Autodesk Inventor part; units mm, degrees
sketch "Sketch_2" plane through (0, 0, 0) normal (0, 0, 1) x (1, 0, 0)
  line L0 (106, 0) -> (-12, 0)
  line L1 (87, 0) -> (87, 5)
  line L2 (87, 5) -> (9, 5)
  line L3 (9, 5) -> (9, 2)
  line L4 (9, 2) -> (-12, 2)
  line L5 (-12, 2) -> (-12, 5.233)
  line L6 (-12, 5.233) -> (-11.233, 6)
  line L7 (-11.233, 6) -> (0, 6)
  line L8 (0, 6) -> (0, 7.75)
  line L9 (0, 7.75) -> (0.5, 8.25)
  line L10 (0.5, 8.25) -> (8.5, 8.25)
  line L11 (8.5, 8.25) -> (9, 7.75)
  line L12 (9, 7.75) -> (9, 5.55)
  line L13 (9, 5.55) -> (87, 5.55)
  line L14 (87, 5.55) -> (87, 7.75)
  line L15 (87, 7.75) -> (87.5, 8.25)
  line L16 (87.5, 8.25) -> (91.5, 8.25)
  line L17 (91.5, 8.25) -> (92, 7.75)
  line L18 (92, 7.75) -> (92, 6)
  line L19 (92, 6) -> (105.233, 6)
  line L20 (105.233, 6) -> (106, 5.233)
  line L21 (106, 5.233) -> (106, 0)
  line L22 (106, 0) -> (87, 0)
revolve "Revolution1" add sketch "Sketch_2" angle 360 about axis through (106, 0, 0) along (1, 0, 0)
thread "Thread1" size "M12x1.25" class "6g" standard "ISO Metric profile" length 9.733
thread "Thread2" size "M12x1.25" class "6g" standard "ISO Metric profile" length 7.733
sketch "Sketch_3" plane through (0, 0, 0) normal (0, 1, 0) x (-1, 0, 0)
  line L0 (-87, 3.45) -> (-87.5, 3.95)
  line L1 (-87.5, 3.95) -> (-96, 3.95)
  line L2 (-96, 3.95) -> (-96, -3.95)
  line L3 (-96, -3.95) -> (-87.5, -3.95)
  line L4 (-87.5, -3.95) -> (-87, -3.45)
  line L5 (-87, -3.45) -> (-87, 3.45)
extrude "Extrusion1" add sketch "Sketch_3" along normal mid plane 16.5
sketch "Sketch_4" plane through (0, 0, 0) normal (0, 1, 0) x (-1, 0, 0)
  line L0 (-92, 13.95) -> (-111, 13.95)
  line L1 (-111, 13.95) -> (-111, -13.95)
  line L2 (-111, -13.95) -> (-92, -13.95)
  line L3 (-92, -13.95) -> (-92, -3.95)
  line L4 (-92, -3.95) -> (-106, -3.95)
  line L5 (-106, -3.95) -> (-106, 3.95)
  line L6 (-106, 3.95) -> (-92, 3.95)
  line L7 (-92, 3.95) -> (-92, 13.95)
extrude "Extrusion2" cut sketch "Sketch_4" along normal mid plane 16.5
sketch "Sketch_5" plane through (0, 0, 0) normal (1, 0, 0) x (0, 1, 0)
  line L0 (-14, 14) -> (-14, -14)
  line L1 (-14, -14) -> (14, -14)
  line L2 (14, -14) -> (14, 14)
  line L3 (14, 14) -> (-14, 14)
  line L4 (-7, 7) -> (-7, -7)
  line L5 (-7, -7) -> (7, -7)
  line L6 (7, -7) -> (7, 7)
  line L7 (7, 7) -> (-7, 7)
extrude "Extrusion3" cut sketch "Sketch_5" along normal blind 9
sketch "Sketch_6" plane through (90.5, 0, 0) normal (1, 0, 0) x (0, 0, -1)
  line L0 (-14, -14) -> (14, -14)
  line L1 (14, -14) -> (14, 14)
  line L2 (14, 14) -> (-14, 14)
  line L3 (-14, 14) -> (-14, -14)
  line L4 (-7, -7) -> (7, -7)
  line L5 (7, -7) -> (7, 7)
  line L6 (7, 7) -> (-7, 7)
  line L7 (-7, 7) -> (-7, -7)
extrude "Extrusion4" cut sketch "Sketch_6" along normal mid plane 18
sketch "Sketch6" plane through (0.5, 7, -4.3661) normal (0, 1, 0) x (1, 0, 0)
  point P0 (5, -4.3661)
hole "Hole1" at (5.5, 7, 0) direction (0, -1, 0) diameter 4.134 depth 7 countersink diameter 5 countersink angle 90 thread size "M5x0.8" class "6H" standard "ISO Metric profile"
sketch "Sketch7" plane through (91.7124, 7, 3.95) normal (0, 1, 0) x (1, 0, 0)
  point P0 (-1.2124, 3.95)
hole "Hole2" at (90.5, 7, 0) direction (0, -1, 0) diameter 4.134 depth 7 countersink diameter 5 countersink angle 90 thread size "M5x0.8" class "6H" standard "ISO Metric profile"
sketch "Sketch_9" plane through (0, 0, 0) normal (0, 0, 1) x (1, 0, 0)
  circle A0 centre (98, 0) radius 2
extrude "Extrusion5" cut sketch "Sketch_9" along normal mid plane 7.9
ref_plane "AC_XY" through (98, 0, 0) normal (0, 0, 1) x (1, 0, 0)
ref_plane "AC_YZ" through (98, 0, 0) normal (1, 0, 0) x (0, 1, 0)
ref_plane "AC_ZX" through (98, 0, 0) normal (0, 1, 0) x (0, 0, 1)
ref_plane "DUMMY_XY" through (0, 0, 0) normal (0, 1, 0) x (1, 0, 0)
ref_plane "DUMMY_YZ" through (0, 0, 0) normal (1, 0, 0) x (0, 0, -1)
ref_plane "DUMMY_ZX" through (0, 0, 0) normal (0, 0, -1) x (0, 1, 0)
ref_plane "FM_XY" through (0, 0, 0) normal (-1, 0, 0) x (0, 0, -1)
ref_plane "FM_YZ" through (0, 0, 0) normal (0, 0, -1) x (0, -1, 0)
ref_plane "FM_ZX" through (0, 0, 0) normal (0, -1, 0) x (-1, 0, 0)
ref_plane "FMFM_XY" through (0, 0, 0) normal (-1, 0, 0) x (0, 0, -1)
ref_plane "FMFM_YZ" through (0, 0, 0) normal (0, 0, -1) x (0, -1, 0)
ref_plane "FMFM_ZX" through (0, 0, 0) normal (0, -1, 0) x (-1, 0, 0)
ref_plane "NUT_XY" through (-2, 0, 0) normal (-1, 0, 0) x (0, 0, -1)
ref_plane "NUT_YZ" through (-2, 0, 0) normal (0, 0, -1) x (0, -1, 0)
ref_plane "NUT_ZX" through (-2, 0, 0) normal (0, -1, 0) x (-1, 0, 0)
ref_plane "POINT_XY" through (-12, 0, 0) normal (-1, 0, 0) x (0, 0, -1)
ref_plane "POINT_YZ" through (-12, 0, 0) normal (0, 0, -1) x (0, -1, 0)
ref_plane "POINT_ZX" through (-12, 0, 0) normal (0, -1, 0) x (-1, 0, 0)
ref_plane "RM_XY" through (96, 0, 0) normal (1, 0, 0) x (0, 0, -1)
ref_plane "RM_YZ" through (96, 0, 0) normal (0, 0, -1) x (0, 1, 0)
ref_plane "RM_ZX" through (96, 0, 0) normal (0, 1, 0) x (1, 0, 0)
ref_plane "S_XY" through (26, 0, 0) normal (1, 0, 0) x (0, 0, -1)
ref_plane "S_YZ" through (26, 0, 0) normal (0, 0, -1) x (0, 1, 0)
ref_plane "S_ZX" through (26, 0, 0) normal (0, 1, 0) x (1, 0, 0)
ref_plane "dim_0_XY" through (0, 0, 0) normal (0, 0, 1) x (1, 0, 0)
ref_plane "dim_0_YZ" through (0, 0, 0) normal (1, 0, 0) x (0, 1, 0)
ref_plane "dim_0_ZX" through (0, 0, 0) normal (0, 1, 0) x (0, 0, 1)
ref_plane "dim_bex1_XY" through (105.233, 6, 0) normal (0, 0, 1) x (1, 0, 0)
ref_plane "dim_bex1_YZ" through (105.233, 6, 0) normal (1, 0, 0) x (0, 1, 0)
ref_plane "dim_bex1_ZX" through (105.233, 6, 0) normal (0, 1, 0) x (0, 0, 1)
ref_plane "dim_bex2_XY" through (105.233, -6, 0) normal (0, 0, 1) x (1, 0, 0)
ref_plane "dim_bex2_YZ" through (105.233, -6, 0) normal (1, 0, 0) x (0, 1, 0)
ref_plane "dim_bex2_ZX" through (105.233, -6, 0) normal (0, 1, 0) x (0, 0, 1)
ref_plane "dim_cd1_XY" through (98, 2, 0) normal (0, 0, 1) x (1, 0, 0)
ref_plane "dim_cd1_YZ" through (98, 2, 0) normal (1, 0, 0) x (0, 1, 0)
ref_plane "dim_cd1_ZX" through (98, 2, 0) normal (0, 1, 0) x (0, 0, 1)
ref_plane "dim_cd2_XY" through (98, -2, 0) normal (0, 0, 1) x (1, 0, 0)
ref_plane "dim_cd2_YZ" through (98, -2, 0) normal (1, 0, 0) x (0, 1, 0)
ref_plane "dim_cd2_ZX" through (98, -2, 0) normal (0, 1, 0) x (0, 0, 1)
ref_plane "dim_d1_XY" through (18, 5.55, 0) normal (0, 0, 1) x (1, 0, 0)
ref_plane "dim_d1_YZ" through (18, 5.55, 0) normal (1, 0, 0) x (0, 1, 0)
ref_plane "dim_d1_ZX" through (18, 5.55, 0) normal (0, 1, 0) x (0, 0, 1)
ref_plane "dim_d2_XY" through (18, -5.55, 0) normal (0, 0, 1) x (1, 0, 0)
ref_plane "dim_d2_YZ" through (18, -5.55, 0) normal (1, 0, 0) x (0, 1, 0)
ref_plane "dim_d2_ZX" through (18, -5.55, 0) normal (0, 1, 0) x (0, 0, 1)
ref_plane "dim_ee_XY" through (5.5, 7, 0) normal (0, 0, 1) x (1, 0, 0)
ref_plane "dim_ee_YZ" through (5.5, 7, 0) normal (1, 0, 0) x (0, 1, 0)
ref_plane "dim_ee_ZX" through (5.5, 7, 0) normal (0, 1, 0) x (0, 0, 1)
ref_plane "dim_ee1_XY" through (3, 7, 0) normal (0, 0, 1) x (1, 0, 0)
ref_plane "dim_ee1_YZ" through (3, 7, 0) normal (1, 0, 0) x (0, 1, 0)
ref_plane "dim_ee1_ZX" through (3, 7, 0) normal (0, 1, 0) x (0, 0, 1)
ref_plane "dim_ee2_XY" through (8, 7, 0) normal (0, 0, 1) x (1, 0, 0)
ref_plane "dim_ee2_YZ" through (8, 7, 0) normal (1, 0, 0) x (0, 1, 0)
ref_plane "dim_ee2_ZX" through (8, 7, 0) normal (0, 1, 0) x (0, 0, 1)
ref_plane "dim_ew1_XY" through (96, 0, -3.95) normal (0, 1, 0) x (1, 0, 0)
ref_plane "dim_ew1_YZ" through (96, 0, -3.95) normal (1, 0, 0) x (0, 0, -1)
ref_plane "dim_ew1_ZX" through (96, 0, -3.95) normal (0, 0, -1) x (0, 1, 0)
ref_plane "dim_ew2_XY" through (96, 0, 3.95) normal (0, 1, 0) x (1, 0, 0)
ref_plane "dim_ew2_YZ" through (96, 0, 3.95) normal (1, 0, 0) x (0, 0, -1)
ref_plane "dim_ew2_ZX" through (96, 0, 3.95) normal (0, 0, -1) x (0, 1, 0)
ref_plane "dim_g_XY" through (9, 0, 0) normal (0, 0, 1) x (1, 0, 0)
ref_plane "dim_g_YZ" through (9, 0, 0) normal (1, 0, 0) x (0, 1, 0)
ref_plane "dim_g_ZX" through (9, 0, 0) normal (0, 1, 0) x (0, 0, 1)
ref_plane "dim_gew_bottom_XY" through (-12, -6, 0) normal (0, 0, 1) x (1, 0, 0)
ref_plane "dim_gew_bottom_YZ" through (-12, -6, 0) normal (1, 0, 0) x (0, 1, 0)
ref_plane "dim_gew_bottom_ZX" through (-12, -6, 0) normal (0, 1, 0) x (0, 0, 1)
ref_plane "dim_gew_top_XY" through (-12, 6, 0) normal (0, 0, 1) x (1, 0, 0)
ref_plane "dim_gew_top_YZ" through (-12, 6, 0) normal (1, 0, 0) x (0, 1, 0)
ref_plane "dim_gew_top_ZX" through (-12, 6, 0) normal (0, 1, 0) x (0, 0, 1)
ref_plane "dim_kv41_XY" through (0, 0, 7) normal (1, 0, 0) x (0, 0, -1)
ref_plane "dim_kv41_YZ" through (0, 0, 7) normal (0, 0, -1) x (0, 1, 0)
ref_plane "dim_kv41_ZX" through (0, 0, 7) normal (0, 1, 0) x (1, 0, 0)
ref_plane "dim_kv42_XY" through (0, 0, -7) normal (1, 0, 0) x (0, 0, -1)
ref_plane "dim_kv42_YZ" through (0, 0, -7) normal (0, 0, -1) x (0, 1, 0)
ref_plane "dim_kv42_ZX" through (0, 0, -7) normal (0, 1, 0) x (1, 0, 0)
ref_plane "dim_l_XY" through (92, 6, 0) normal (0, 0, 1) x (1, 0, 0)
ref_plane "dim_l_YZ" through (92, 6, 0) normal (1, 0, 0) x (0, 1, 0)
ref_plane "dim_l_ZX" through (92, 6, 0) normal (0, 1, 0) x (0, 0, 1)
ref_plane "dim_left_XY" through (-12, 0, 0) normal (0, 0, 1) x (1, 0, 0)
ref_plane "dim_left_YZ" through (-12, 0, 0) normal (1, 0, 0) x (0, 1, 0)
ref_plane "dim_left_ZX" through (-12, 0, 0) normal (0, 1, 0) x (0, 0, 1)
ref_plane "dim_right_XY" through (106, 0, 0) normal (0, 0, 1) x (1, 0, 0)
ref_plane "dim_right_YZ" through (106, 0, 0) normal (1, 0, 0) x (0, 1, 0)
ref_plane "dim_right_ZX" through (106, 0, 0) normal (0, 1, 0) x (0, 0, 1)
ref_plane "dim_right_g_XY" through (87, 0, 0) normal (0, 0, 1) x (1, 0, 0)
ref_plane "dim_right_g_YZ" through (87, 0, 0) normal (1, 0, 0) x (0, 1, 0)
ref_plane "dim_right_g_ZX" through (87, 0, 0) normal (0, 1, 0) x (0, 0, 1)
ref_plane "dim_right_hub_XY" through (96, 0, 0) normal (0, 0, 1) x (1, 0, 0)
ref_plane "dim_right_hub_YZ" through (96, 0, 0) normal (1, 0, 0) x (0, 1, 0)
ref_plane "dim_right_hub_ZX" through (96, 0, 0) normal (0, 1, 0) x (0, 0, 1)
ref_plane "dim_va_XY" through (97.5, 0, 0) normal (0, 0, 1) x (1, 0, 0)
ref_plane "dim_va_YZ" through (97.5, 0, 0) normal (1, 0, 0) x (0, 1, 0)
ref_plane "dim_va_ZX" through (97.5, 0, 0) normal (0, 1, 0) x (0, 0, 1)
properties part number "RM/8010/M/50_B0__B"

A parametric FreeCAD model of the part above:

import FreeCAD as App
import Part
import Sketcher
from FreeCAD import Vector
Q = App.Units.Quantity


def add_polygon(sketch, points):
    """Adds a closed chain of lines whose ends are joined by coincident constraints."""
    first, n = sketch.GeometryCount, len(points)
    for a, b in zip(points, points[1:] + points[:1]):
        sketch.addGeometry(Part.LineSegment(App.Vector(*a, 0), App.Vector(*b, 0)), False)
    for i in range(n):
        sketch.addConstraint(Sketcher.Constraint("Coincident", first + i, 2, first + (i + 1) % n, 1))

doc = App.newDocument("Part")
body = doc.addObject("PartDesign::Body", "Body")

# Sketch on XY plane
sketch1 = body.newObject("Sketcher::SketchObject", "Sketch")
sketch1.AttachmentSupport = (doc.getObject("XY_Plane"), [""])
sketch1.MapMode = "FlatFace"
add_polygon(sketch1, [(87, 0), (106, 0), (106, 5.2), (105.2, 6), (92, 6), (92, 7.8), (91.5, 8.2), (87.5, 8.2), (87, 7.8), (87, 5.5), (9, 5.5), (9, 7.8), (8.5, 8.2), (0.5, 8.2), (0, 7.8), (0, 6), (-11.2, 6), (-12, 5.2), (-12, 2), (9, 2), (9, 5), (87, 5)])  # lines 0-21
sketch1.addConstraint(Sketcher.Constraint("Horizontal", 0))
sketch1.addConstraint(Sketcher.Constraint("Vertical", 1))
sketch1.addConstraint(Sketcher.Constraint("Horizontal", 3))
sketch1.addConstraint(Sketcher.Constraint("Vertical", 4))
sketch1.addConstraint(Sketcher.Constraint("Horizontal", 6))
sketch1.addConstraint(Sketcher.Constraint("Vertical", 8))
sketch1.addConstraint(Sketcher.Constraint("Horizontal", 9))
sketch1.addConstraint(Sketcher.Constraint("Vertical", 10))
sketch1.addConstraint(Sketcher.Constraint("Horizontal", 12))
sketch1.addConstraint(Sketcher.Constraint("Vertical", 14))
sketch1.addConstraint(Sketcher.Constraint("Horizontal", 15))
sketch1.addConstraint(Sketcher.Constraint("Vertical", 17))
sketch1.addConstraint(Sketcher.Constraint("Horizontal", 18))
sketch1.addConstraint(Sketcher.Constraint("Vertical", 19))
sketch1.addConstraint(Sketcher.Constraint("Horizontal", 20))
sketch1.addConstraint(Sketcher.Constraint("Vertical", 21))
sketch1.addConstraint(Sketcher.Constraint("PointOnObject", 0, 2, -1))
sketch1.addConstraint(Sketcher.Constraint("PointOnObject", 13, 2, -2))
sketch1.addConstraint(Sketcher.Constraint("Parallel", 2, 5))
sketch1.addConstraint(Sketcher.Constraint("Perpendicular", 5, 7))
sketch1.addConstraint(Sketcher.Constraint("Perpendicular", 7, 11))
sketch1.addConstraint(Sketcher.Constraint("Perpendicular", 11, 13))
sketch1.addConstraint(Sketcher.Constraint("Parallel", 13, 16))
sketch1.addConstraint(Sketcher.Constraint("Horizontal", 4, 2, 7, 2))
sketch1.addConstraint(Sketcher.Constraint("Horizontal", 7, 2, 10, 2))
sketch1.addConstraint(Sketcher.Constraint("Horizontal", 6, 2, 11, 2))
sketch1.addConstraint(Sketcher.Constraint("Horizontal", 10, 2, 13, 2))
sketch1.addConstraint(Sketcher.Constraint("Horizontal", 3, 2, 14, 2))
sketch1.addConstraint(Sketcher.Constraint("Horizontal", 1, 2, 16, 2))
sketch1.addConstraint(Sketcher.Constraint("Vertical", 10, 2, 18, 2))
sketch1.addConstraint(Sketcher.Constraint("Vertical", 8, 2, 20, 2))
sketch1.addConstraint(Sketcher.Constraint("Equal", 5, 7))
sketch1.addConstraint(Sketcher.Constraint("DistanceX", 0, 1, 0, 2, Q("19 mm")))
sketch1.addConstraint(Sketcher.Constraint("DistanceX", 6, 2, 6, 1, Q("4 mm")))
sketch1.addConstraint(Sketcher.Constraint("DistanceX", 9, 2, 9, 1, Q("78 mm")))
sketch1.addConstraint(Sketcher.Constraint("DistanceX", 12, 2, 12, 1, Q("8 mm")))
sketch1.addConstraint(Sketcher.Constraint("DistanceX", 18, 1, 18, 2, Q("21 mm")))
sketch1.addConstraint(Sketcher.Constraint("DistanceY", 19, 1, 19, 2, Q("3 mm")))
sketch1.addConstraint(Sketcher.Constraint("DistanceY", 21, 2, 21, 1, Q("5 mm")))
sketch1.addConstraint(Sketcher.Constraint("DistanceY", 8, 2, 8, 1, Q("2.2 mm")))
sketch1.addConstraint(Sketcher.Constraint("DistanceX", -1, 1, 0, 2, Q("106 mm")))
sketch1.addConstraint(Sketcher.Constraint("DistanceY", -1, 1, 2, 2, Q("6 mm")))
sketch1.addConstraint(Sketcher.Constraint("DistanceY", 4, 1, 4, 2, Q("1.75 mm")))
sketch1.addConstraint(Sketcher.Constraint("DistanceX", 3, 2, 3, 1, Q("13.233 mm")))
revolution = body.newObject("PartDesign::Revolution", "Revolution")
revolution.Profile = sketch1
revolution.ReferenceAxis = (sketch1, ["H_Axis"])
revolution.Angle = 360

# Sketch on XZ plane
sketch2 = body.newObject("Sketcher::SketchObject", "Sketch001")
sketch2.AttachmentSupport = (doc.getObject("XZ_Plane"), [""])
sketch2.MapMode = "FlatFace"
add_polygon(sketch2, [(87, -3.5), (87, 3.5), (87.5, 4), (96, 4), (96, -4), (87.5, -4)])  # lines 0-5
sketch2.addConstraint(Sketcher.Constraint("Vertical", 0))
sketch2.addConstraint(Sketcher.Constraint("Horizontal", 2))
sketch2.addConstraint(Sketcher.Constraint("Vertical", 3))
sketch2.addConstraint(Sketcher.Constraint("Horizontal", 4))
sketch2.addConstraint(Sketcher.Constraint("Symmetric", 1, 2, 4, 2, -1))
sketch2.addConstraint(Sketcher.Constraint("Perpendicular", 1, 5))
sketch2.addConstraint(Sketcher.Constraint("Equal", 1, 5))
sketch2.addConstraint(Sketcher.Constraint("DistanceX", 2, 1, 2, 2, Q("8.5 mm")))
sketch2.addConstraint(Sketcher.Constraint("DistanceY", 0, 1, 0, 2, Q("6.9 mm")))
sketch2.addConstraint(Sketcher.Constraint("DistanceY", 3, 2, 3, 1, Q("7.9 mm")))
sketch2.addConstraint(Sketcher.Constraint("DistanceX", -1, 1, 0, 2, Q("87 mm")))
pad1 = body.newObject("PartDesign::Pad", "Pad")
pad1.Profile = sketch2
pad1.Length = 16.5
pad1.Midplane = True

# Sketch on XZ plane
sketch3 = body.newObject("Sketcher::SketchObject", "Sketch002")
sketch3.AttachmentSupport = (doc.getObject("XZ_Plane"), [""])
sketch3.MapMode = "FlatFace"
add_polygon(sketch3, [(92, 4), (92, 14), (111, 14), (111, -14), (92, -14), (92, -4), (106, -4), (106, 4)])  # lines 0-7
sketch3.addConstraint(Sketcher.Constraint("Vertical", 0))
sketch3.addConstraint(Sketcher.Constraint("Horizontal", 1))
sketch3.addConstraint(Sketcher.Constraint("Vertical", 2))
sketch3.addConstraint(Sketcher.Constraint("Horizontal", 3))
sketch3.addConstraint(Sketcher.Constraint("Vertical", 4))
sketch3.addConstraint(Sketcher.Constraint("Horizontal", 5))
sketch3.addConstraint(Sketcher.Constraint("Vertical", 6))
sketch3.addConstraint(Sketcher.Constraint("Horizontal", 7))
sketch3.addConstraint(Sketcher.Constraint("Symmetric", 0, 2, 3, 2, -1))
sketch3.addConstraint(Sketcher.Constraint("Equal", 0, 4))
sketch3.addConstraint(Sketcher.Constraint("DistanceX", 1, 1, 1, 2, Q("19 mm")))
sketch3.addConstraint(Sketcher.Constraint("DistanceX", 5, 1, 5, 2, Q("14 mm")))
sketch3.addConstraint(Sketcher.Constraint("DistanceY", 0, 1, 0, 2, Q("10 mm")))
sketch3.addConstraint(Sketcher.Constraint("DistanceY", 2, 2, 2, 1, Q("27.9 mm")))
sketch3.addConstraint(Sketcher.Constraint("DistanceX", -1, 1, 0, 2, Q("92 mm")))
pocket1 = body.newObject("PartDesign::Pocket", "Pocket")
pocket1.Profile = sketch3
pocket1.Length = 16.5
pocket1.Midplane = True

# Sketch on YZ plane
sketch4 = body.newObject("Sketcher::SketchObject", "Sketch003")
sketch4.AttachmentSupport = (doc.getObject("YZ_Plane"), [""])
sketch4.MapMode = "FlatFace"
add_polygon(sketch4, [(14, 14), (-14, 14), (-14, -14), (14, -14)])  # lines 0-3
add_polygon(sketch4, [(-7, -7), (-7, 7), (7, 7), (7, -7)])  # lines 4-7
sketch4.addConstraint(Sketcher.Constraint("Horizontal", 0))
sketch4.addConstraint(Sketcher.Constraint("Vertical", 1))
sketch4.addConstraint(Sketcher.Constraint("Horizontal", 2))
sketch4.addConstraint(Sketcher.Constraint("Vertical", 3))
sketch4.addConstraint(Sketcher.Constraint("Vertical", 4))
sketch4.addConstraint(Sketcher.Constraint("Horizontal", 5))
sketch4.addConstraint(Sketcher.Constraint("Vertical", 6))
sketch4.addConstraint(Sketcher.Constraint("Horizontal", 7))
sketch4.addConstraint(Sketcher.Constraint("Symmetric", 0, 2, 2, 2, -1, 1))
sketch4.addConstraint(Sketcher.Constraint("Symmetric", 4, 2, 6, 2, -1, 1))
sketch4.addConstraint(Sketcher.Constraint("Equal", 2, 1))
sketch4.addConstraint(Sketcher.Constraint("Equal", 7, 4))
sketch4.addConstraint(Sketcher.Constraint("DistanceX", 0, 2, 0, 1, Q("28 mm")))
sketch4.addConstraint(Sketcher.Constraint("DistanceX", 5, 1, 5, 2, Q("14 mm")))
pocket2 = body.newObject("PartDesign::Pocket", "Pocket001")
pocket2.Profile = sketch4
pocket2.Length = 9
pocket2.Reversed = True

# Sketch on YZ plane
sketch5 = body.newObject("Sketcher::SketchObject", "Sketch004")
sketch5.AttachmentSupport = (doc.getObject("YZ_Plane"), [""])
sketch5.MapMode = "FlatFace"
sketch5.AttachmentOffset = App.Placement(Vector(0, 0, 90.5), App.Rotation())
add_polygon(sketch5, [(14, 14), (-14, 14), (-14, -14), (14, -14)])  # lines 0-3
add_polygon(sketch5, [(-7, -7), (-7, 7), (7, 7), (7, -7)])  # lines 4-7
sketch5.addConstraint(Sketcher.Constraint("Horizontal", 0))
sketch5.addConstraint(Sketcher.Constraint("Vertical", 1))
sketch5.addConstraint(Sketcher.Constraint("Horizontal", 2))
sketch5.addConstraint(Sketcher.Constraint("Vertical", 3))
sketch5.addConstraint(Sketcher.Constraint("Vertical", 4))
sketch5.addConstraint(Sketcher.Constraint("Horizontal", 5))
sketch5.addConstraint(Sketcher.Constraint("Vertical", 6))
sketch5.addConstraint(Sketcher.Constraint("Horizontal", 7))
sketch5.addConstraint(Sketcher.Constraint("Symmetric", 0, 2, 2, 2, -1, 1))
sketch5.addConstraint(Sketcher.Constraint("Symmetric", 4, 2, 6, 2, -1, 1))
sketch5.addConstraint(Sketcher.Constraint("Equal", 2, 1))
sketch5.addConstraint(Sketcher.Constraint("Equal", 7, 4))
sketch5.addConstraint(Sketcher.Constraint("DistanceX", 0, 2, 0, 1, Q("28 mm")))
sketch5.addConstraint(Sketcher.Constraint("DistanceX", 5, 1, 5, 2, Q("14 mm")))
pocket3 = body.newObject("PartDesign::Pocket", "Pocket002")
pocket3.Profile = sketch5
pocket3.Length = 18
pocket3.Midplane = True

# Sketch on XZ plane
sketch6 = body.newObject("Sketcher::SketchObject", "Sketch005")
sketch6.AttachmentSupport = (doc.getObject("XZ_Plane"), [""])
sketch6.MapMode = "FlatFace"
sketch6.AttachmentOffset = App.Placement(Vector(0, 0, -7), App.Rotation())
sketch6.addGeometry(Part.Circle(Vector(5.5, 0, 0), Vector(0, 0, 1), 2.1), False)
sketch6.addConstraint(Sketcher.Constraint("PointOnObject", 0, 3, -1))
sketch6.addConstraint(Sketcher.Constraint("Diameter", 0, Q("4.134 mm")))
sketch6.addConstraint(Sketcher.Constraint("DistanceX", -1, 1, 0, 3, Q("5.5 mm")))
doc.recompute()
hole = body.newObject("PartDesign::Hole", "Hole")
hole.Profile = sketch6
hole.ThreadType = "None"
hole.Diameter = 4.134
hole.DepthType = "Dimension"
hole.Depth = 7
hole.DrillPoint = "Flat"
hole.HoleCutType = "Countersink"
hole.HoleCutDiameter = 5
hole.HoleCutCountersinkAngle = 90
hole.Reversed = True

# Sketch on XZ plane
sketch7 = body.newObject("Sketcher::SketchObject", "Sketch006")
sketch7.AttachmentSupport = (doc.getObject("XZ_Plane"), [""])
sketch7.MapMode = "FlatFace"
sketch7.AttachmentOffset = App.Placement(Vector(0, 0, -7), App.Rotation())
sketch7.addGeometry(Part.Circle(Vector(90.5, 0, 0), Vector(0, 0, 1), 2.1), False)
sketch7.addConstraint(Sketcher.Constraint("PointOnObject", 0, 3, -1))
sketch7.addConstraint(Sketcher.Constraint("Diameter", 0, Q("4.134 mm")))
sketch7.addConstraint(Sketcher.Constraint("DistanceX", -1, 1, 0, 3, Q("90.5 mm")))
doc.recompute()
hole2 = body.newObject("PartDesign::Hole", "Hole001")
hole2.Profile = sketch7
hole2.ThreadType = "None"
hole2.Diameter = 4.134
hole2.DepthType = "Dimension"
hole2.Depth = 7
hole2.DrillPoint = "Flat"
hole2.HoleCutType = "Countersink"
hole2.HoleCutDiameter = 5
hole2.HoleCutCountersinkAngle = 90
hole2.Reversed = True

# Sketch on XY plane
sketch8 = body.newObject("Sketcher::SketchObject", "Sketch007")
sketch8.AttachmentSupport = (doc.getObject("XY_Plane"), [""])
sketch8.MapMode = "FlatFace"
sketch8.addGeometry(Part.Circle(Vector(98, 0, 0), Vector(0, 0, 1), 2), False)
sketch8.addConstraint(Sketcher.Constraint("PointOnObject", 0, 3, -1))
sketch8.addConstraint(Sketcher.Constraint("Diameter", 0, Q("4 mm")))
sketch8.addConstraint(Sketcher.Constraint("DistanceX", -1, 1, 0, 3, Q("98 mm")))
pocket4 = body.newObject("PartDesign::Pocket", "Pocket003")
pocket4.Profile = sketch8
pocket4.Length = 7.9
pocket4.Midplane = True

doc.recompute()
